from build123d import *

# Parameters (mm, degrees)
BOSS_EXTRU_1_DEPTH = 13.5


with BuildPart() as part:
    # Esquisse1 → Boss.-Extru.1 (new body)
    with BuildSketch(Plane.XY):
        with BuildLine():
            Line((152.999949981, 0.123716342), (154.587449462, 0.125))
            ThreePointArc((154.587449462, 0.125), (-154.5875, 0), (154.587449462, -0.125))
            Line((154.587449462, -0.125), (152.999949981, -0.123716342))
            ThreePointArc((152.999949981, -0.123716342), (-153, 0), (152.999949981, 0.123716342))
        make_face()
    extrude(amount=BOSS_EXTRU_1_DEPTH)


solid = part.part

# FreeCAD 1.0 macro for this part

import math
import FreeCAD as App
import Part
import Sketcher
Q = App.Units.Quantity

doc = App.newDocument("Part")
body = doc.addObject("PartDesign::Body", "Body")

sketch1 = body.newObject("Sketcher::SketchObject", "Sketch")
sketch1.AttachmentSupport = (doc.getObject("XY_Plane"), [""])
sketch1.MapMode = "FlatFace"
sketch1.addGeometry([
    Part.LineSegment(App.Vector(153, 0.12, 0), App.Vector(154.59, 0.12, 0)),
    Part.ArcOfCircle(Part.Circle(App.Vector(0, 0, 0), App.Vector(0, 0, 1), 154.59), math.radians(0), math.radians(360)),
    Part.LineSegment(App.Vector(154.59, -0.12, 0), App.Vector(153, -0.12, 0)),
    Part.ArcOfCircle(Part.Circle(App.Vector(0, 0, 0), App.Vector(0, 0, 1), 153), math.radians(0), math.radians(360)),
], False)
sketch1.addConstraint([
    Sketcher.Constraint("Coincident", 0, 2, 1, 1),
    Sketcher.Constraint("Coincident", 1, 2, 2, 1),
    Sketcher.Constraint("Coincident", 2, 2, 3, 2),
    Sketcher.Constraint("Coincident", 3, 1, 0, 1),
    Sketcher.Constraint("Coincident", 1, 3, -1, 1),
    Sketcher.Constraint("Coincident", 3, 3, -1, 1),
    Sketcher.Constraint("Radius", 3, Q("153 mm")),
    Sketcher.Constraint("Radius", 1, Q("154.5875 mm")),
    Sketcher.Constraint("DistanceY", 1, 2, 0, 2, Q("0.25 mm")),
    Sketcher.Constraint("DistanceY", -1, 1, 0, 2, Q("0.125 mm")),
    Sketcher.Constraint("DistanceY", 2, 2, -1, 1, Q("0.123716 mm")),
    Sketcher.Constraint("DistanceY", -1, 1, 3, 1, Q("0.123716 mm")),
])
pad1 = body.newObject("PartDesign::Pad", "Pad")
pad1.Profile = sketch1
pad1.Length = 13.5

doc.recompute()
